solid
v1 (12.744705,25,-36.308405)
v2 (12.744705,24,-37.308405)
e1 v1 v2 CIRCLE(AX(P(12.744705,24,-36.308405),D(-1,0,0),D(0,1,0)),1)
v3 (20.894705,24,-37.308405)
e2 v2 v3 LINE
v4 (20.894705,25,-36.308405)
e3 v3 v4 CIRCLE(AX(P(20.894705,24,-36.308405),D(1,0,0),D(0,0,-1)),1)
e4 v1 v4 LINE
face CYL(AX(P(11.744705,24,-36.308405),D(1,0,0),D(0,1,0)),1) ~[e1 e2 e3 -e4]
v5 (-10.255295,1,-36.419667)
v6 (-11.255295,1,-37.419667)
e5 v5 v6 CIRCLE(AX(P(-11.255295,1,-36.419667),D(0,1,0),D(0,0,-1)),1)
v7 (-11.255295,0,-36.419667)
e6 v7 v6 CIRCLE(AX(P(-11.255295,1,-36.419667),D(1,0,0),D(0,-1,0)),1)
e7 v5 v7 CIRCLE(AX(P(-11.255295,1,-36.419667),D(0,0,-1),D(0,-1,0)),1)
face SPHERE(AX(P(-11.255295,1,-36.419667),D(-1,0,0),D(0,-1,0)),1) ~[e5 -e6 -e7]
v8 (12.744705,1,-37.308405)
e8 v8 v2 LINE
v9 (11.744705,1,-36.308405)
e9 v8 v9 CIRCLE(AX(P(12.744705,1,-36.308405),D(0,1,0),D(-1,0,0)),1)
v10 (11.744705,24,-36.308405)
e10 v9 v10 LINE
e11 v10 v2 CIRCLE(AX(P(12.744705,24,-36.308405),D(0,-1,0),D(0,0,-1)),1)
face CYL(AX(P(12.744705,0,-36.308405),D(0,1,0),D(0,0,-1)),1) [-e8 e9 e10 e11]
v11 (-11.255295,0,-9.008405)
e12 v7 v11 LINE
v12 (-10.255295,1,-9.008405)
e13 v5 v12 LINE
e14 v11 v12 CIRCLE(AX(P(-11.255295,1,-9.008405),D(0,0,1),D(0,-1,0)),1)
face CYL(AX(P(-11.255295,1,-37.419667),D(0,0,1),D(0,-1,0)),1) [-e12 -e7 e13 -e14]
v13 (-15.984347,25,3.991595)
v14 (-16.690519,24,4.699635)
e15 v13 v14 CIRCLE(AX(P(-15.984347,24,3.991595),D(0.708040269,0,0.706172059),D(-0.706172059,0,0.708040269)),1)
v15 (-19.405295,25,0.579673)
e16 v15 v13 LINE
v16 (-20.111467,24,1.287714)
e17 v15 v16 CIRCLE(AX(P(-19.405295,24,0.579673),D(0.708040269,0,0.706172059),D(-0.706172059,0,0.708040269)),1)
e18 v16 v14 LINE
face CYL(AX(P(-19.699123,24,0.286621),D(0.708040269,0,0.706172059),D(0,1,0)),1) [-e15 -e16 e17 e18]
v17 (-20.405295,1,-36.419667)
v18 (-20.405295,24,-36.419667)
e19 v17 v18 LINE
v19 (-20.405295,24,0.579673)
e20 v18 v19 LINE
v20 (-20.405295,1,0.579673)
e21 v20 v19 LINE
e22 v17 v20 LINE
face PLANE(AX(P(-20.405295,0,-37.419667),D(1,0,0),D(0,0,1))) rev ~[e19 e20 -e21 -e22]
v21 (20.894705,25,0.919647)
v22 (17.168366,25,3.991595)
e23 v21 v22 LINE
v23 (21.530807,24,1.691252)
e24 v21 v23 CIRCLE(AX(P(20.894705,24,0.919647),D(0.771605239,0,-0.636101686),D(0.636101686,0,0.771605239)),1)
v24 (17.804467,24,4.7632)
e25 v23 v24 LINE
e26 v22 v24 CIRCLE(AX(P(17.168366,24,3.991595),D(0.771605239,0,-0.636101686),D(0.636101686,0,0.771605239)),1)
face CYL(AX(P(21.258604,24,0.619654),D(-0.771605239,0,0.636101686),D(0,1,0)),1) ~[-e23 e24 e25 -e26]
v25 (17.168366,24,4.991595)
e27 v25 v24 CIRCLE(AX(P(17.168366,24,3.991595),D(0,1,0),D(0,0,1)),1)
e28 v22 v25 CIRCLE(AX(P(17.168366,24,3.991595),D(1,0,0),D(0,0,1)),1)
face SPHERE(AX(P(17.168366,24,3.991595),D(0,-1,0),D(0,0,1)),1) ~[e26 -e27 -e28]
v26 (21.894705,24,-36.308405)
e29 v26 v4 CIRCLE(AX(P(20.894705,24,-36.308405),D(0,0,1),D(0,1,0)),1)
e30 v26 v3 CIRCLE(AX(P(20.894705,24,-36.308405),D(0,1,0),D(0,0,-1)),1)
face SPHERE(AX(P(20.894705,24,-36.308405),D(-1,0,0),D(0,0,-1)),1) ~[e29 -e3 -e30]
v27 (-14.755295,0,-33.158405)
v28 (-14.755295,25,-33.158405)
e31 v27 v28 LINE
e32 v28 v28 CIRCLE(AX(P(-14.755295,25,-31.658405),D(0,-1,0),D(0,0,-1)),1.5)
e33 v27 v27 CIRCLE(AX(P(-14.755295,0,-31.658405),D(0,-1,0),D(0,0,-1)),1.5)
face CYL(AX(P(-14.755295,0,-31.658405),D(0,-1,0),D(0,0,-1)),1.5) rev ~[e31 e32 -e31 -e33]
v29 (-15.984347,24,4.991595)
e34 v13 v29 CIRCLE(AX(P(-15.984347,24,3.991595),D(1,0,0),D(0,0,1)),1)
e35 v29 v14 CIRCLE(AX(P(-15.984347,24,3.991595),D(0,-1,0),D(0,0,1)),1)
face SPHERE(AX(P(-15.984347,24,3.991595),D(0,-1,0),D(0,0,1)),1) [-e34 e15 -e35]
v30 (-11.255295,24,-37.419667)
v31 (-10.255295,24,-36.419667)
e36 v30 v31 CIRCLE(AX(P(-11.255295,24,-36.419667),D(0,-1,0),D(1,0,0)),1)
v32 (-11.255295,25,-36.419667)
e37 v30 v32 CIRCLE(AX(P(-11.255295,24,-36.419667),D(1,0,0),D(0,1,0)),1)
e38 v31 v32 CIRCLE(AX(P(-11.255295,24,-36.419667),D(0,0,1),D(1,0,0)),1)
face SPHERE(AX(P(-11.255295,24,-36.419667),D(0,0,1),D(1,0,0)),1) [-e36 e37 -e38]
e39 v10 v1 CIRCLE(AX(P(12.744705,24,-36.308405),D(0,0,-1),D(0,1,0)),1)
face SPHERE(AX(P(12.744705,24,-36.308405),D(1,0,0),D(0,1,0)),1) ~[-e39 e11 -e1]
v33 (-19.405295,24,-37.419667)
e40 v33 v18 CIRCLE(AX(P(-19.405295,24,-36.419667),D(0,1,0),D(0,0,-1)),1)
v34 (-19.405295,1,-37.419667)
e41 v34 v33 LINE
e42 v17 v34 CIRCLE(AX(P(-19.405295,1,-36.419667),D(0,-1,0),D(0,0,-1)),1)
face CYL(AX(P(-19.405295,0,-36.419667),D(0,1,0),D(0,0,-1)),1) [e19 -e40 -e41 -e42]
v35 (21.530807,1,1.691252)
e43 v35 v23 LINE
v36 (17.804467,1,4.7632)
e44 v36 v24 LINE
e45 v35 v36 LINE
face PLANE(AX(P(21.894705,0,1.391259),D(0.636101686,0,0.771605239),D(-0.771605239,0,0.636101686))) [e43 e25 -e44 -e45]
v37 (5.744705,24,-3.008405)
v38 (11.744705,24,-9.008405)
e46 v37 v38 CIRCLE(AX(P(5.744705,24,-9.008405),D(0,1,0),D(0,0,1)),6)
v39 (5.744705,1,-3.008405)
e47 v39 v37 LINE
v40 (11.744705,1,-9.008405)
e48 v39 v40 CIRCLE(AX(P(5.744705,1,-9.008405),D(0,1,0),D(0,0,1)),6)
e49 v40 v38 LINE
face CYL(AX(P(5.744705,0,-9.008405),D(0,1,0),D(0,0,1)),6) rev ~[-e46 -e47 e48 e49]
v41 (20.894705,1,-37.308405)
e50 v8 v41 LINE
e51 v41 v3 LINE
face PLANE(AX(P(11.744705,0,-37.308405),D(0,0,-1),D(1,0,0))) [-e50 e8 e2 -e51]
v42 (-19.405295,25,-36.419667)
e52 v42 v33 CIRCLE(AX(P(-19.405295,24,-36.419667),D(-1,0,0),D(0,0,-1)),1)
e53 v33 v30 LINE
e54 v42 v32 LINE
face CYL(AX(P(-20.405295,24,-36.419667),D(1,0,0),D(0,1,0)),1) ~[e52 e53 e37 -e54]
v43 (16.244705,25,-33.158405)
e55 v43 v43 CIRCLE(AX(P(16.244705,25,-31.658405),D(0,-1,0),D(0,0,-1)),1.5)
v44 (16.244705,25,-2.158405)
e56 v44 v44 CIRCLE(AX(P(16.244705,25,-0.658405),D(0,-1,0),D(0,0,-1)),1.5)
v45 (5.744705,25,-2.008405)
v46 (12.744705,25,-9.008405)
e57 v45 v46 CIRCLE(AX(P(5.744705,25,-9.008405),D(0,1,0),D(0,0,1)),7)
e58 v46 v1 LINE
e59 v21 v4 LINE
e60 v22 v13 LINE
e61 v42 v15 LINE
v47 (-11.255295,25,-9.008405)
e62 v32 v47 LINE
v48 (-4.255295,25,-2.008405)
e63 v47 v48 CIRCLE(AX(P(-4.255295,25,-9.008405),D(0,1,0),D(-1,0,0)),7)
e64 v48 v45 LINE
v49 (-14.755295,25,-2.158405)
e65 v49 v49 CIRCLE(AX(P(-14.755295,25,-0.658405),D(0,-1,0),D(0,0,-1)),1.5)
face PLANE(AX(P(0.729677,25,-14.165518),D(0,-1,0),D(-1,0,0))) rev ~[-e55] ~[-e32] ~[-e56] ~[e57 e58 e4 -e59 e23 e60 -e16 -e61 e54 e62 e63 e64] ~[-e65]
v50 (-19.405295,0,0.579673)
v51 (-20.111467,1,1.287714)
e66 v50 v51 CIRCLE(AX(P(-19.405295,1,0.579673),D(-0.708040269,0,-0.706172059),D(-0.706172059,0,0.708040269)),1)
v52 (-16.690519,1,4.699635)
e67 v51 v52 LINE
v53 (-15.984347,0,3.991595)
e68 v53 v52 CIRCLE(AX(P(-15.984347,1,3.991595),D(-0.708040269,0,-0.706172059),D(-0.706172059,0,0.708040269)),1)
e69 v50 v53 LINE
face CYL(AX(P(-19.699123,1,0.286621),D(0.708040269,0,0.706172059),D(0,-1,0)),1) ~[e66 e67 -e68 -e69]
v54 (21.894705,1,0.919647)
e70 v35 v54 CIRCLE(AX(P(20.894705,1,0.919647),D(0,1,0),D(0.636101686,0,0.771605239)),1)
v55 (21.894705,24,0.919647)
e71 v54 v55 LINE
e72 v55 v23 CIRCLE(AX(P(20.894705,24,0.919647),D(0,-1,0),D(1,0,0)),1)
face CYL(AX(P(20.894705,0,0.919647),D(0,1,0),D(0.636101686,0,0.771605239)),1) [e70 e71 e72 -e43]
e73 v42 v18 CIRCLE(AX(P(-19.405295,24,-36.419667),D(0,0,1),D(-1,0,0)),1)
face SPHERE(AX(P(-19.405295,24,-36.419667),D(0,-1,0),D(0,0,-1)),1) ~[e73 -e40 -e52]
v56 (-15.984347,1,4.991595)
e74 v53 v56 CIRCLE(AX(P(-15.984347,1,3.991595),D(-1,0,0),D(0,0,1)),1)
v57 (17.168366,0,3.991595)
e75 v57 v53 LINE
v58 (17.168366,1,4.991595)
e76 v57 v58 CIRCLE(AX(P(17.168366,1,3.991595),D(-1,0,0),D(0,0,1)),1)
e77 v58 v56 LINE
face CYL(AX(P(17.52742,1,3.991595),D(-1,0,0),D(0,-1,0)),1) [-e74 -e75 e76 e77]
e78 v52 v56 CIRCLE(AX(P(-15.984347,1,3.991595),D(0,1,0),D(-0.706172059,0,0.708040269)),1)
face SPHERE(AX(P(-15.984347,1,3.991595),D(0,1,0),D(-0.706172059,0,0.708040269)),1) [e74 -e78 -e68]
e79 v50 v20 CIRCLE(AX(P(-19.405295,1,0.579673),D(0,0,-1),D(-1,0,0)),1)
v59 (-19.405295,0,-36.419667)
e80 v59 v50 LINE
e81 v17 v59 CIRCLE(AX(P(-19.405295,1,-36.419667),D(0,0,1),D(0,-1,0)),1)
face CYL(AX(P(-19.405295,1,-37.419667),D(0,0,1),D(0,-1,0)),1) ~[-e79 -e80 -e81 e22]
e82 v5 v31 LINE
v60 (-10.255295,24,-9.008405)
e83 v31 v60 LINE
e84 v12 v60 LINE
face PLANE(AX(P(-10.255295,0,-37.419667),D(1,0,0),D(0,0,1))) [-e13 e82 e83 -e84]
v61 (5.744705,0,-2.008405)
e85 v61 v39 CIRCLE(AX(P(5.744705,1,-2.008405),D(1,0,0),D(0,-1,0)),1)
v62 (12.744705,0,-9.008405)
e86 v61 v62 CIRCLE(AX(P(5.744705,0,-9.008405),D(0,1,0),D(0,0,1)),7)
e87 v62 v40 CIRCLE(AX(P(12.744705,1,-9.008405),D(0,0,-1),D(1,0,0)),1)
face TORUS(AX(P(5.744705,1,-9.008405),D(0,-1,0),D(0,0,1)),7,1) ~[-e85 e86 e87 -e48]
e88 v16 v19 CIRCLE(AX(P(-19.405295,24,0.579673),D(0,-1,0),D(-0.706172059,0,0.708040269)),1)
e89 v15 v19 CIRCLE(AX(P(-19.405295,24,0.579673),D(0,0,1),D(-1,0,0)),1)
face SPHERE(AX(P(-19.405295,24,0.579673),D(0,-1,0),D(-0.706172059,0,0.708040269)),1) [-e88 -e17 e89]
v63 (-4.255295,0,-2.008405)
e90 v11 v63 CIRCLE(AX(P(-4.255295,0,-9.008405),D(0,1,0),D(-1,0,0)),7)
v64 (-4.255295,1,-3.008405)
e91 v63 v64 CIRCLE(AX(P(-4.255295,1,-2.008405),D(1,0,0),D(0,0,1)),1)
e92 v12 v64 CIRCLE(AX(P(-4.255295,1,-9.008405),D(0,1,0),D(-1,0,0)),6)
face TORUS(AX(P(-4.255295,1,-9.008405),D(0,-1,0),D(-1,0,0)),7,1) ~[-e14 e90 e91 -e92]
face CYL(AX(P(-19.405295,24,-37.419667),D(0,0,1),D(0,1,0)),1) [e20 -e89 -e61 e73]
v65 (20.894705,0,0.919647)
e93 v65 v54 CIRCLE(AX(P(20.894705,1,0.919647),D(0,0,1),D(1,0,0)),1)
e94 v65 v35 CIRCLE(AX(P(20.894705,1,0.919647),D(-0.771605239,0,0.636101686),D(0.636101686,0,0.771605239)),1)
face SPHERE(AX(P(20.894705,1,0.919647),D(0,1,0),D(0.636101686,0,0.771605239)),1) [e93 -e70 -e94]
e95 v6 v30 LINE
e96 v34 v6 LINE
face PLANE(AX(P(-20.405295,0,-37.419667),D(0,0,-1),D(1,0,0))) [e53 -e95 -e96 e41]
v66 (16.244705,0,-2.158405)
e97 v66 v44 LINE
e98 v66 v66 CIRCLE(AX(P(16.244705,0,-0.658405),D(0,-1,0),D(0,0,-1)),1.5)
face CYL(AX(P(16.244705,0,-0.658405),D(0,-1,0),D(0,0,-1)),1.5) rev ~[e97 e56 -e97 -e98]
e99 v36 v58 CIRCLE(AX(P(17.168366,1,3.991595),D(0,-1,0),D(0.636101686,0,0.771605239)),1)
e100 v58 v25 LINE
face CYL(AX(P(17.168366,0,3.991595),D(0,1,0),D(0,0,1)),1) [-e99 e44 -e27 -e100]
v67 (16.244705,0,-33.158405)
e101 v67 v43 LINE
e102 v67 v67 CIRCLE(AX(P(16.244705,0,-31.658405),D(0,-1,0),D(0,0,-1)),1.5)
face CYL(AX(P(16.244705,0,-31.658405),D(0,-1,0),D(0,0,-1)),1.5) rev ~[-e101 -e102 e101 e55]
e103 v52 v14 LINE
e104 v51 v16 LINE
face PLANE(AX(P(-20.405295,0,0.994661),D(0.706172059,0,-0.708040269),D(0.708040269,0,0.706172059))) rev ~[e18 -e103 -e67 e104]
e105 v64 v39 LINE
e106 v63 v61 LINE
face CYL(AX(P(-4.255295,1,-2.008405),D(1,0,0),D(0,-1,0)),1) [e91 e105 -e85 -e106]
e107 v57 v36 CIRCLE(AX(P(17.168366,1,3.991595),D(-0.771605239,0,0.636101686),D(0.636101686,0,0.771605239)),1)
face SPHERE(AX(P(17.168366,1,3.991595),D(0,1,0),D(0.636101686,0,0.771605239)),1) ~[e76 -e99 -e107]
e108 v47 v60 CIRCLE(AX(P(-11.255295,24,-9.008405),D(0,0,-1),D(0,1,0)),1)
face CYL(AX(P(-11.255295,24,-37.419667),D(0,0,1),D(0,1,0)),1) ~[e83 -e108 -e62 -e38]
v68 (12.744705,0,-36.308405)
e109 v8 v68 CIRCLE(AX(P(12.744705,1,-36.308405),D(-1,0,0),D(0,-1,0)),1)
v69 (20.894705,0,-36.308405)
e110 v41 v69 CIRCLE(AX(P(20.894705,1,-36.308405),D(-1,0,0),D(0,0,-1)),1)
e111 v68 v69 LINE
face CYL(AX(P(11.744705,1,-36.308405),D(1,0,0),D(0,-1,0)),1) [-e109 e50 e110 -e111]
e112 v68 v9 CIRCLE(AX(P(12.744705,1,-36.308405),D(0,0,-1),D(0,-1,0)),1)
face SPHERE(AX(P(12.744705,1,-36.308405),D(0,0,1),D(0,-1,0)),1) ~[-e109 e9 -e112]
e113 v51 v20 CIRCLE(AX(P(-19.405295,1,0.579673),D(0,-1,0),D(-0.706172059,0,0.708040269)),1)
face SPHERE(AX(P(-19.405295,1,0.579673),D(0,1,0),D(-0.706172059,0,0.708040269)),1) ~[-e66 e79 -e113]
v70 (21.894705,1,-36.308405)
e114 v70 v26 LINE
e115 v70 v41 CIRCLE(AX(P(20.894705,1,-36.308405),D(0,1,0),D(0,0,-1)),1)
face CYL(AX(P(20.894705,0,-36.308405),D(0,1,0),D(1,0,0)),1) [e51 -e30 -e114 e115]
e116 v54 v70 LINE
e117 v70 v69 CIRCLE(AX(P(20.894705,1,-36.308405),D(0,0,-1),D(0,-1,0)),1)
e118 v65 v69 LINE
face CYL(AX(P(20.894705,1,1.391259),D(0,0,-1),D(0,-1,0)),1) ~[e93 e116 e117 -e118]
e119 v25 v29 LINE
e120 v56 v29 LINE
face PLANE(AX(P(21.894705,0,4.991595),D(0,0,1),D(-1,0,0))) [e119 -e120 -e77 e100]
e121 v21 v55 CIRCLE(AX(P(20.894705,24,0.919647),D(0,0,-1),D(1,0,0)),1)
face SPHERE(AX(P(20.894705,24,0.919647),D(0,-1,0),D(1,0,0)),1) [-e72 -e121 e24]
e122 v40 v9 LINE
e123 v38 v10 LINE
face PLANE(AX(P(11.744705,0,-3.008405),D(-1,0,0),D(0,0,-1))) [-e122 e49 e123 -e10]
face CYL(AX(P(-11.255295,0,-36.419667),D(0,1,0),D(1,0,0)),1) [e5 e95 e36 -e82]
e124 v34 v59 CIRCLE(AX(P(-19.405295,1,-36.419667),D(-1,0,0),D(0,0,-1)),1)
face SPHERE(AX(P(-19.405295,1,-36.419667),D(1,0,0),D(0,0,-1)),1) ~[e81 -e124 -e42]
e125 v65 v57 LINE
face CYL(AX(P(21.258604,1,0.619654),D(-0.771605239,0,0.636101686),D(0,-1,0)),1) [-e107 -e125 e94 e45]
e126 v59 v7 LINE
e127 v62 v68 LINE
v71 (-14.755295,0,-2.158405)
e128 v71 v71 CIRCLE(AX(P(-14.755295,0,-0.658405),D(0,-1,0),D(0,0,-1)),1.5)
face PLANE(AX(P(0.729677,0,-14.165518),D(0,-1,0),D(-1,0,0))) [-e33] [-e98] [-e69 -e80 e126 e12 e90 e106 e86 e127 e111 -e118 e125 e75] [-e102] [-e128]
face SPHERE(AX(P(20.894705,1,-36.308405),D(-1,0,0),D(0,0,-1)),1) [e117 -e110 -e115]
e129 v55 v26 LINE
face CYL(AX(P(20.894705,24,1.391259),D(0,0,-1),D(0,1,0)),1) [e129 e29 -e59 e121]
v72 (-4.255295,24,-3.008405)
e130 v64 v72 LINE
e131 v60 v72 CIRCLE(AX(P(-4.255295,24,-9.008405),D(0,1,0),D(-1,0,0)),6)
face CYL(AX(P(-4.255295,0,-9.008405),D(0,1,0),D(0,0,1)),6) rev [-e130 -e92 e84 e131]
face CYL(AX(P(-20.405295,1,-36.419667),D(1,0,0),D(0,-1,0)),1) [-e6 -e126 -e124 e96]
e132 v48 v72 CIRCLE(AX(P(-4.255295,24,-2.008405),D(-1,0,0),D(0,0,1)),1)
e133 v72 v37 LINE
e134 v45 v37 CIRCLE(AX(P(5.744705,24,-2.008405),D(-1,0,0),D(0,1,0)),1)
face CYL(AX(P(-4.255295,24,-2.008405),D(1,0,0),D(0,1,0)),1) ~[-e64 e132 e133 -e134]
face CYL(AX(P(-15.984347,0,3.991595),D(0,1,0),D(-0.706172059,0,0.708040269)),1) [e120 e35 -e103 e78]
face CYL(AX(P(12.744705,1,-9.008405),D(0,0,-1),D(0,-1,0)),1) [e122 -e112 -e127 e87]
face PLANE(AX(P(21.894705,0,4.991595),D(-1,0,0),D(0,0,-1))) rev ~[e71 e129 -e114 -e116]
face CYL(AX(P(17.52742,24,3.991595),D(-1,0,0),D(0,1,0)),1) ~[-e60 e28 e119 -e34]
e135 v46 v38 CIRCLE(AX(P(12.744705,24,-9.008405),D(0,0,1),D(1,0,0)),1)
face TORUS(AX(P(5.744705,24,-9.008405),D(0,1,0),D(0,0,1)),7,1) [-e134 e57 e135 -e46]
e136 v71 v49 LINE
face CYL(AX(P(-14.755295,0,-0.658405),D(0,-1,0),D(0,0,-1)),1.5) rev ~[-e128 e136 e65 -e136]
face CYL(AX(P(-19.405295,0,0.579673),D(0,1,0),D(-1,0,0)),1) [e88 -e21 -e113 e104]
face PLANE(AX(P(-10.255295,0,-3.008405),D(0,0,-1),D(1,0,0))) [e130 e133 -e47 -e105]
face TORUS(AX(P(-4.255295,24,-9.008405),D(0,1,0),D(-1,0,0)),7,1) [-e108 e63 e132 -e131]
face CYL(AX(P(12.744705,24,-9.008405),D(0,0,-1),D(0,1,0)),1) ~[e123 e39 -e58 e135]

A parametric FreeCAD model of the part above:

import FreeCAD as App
import Part
import Sketcher
from FreeCAD import Vector


def edges_at(feature, points):
    """Names of the edges that pass closest to the given points."""
    edges = feature.Shape.Edges
    near = lambda p: min(range(len(edges)), key=lambda i: edges[i].distToShape(Part.Vertex(*p))[0])
    return sorted({f"Edge{near(p) + 1}" for p in points})


def add_polygon(sketch, points):
    """Adds a closed chain of lines whose ends are joined by coincident constraints."""
    first, n = sketch.GeometryCount, len(points)
    for a, b in zip(points, points[1:] + points[:1]):
        sketch.addGeometry(Part.LineSegment(App.Vector(*a, 0), App.Vector(*b, 0)), False)
    for i in range(n):
        sketch.addConstraint(Sketcher.Constraint("Coincident", first + i, 2, first + (i + 1) % n, 1))

doc = App.newDocument("Part")
params = doc.addObject("Spreadsheet::Sheet", "Params")
for row, (alias, value) in enumerate([
    ("sketch1_width", "22 mm"),
    ("sketch1_width2", "42.3 mm"),
    ("sketch1_height", "34.3 mm"),
    ("pad1_length", "25 mm"),
    ("sketch2_diameter", "3 mm"),
    ("fillet_radius", "6 mm"),
    ("sketch3_length", "5.66 mm"),
    ("fillet2_radius", "1 mm"),
], start=1):
    params.set(f"A{row}", alias)
    params.set(f"B{row}", "=" + value)
    params.setAlias(f"B{row}", alias)

body = doc.addObject("PartDesign::Body", "Body")

sketch1 = body.newObject("Sketcher::SketchObject", "Sketch")
sketch1.AttachmentSupport = (doc.getObject("XZ_Plane"), [""])
sketch1.MapMode = "FlatFace"
add_polygon(sketch1, [(11.744705, -3.008405), (-10.255295, -3.008405), (-10.255295, -37.419667), (-20.405295, -37.419667), (-20.405295, 4.991595), (21.894705, 4.991595), (21.894705, -37.308405), (11.744705, -37.308405)])
sketch1.addConstraint(Sketcher.Constraint("Horizontal", 0))
sketch1.addConstraint(Sketcher.Constraint("Vertical", 1))
sketch1.addConstraint(Sketcher.Constraint("Horizontal", 2))
sketch1.addConstraint(Sketcher.Constraint("Vertical", 3))
sketch1.addConstraint(Sketcher.Constraint("Horizontal", 4))
sketch1.addConstraint(Sketcher.Constraint("Vertical", 5))
sketch1.addConstraint(Sketcher.Constraint("Horizontal", 6))
sketch1.addConstraint(Sketcher.Constraint("Vertical", 7))
sketch1.addConstraint(Sketcher.Constraint("Equal", 2, 6))
sketch1.addConstraint(Sketcher.Constraint("Equal", 4, 5))
sketch1.addConstraint(Sketcher.Constraint("DistanceX", 0, 2, 0, 1, 22.0))
sketch1.addConstraint(Sketcher.Constraint("DistanceX", 4, 1, 4, 2, 42.3))
sketch1.addConstraint(Sketcher.Constraint("DistanceY", 7, 1, 7, 2, 34.3))
sketch1.addConstraint(Sketcher.Constraint("DistanceY", 1, 2, 1, 1, 34.411261))
sketch1.addConstraint(Sketcher.Constraint("DistanceX", 0, 2, -1, 1, 10.255295))
sketch1.addConstraint(Sketcher.Constraint("DistanceY", 0, 2, -1, 1, 3.008405))
sketch1.setExpression("Constraints[18]", "Params.sketch1_width")
sketch1.setExpression("Constraints[19]", "Params.sketch1_width2")
sketch1.setExpression("Constraints[20]", "Params.sketch1_height")
pad1 = body.newObject("PartDesign::Pad", "Pad")
pad1.Profile = sketch1
pad1.setExpression("Length", "Params.pad1_length")
pad1.Reversed = True

sketch2 = body.newObject("Sketcher::SketchObject", "Sketch001")
sketch2.AttachmentSupport = (doc.getObject("XZ_Plane"), [""])
sketch2.MapMode = "FlatFace"
sketch2.addGeometry(Part.Circle(Vector(-14.755295, -31.658405, 0), Vector(0, 0, 1), 1.5), False)
sketch2.addGeometry(Part.Circle(Vector(-14.755295, -0.658405, 0), Vector(0, 0, 1), 1.5), False)
sketch2.addGeometry(Part.Circle(Vector(16.244705, -0.658405, 0), Vector(0, 0, 1), 1.5), False)
sketch2.addGeometry(Part.Circle(Vector(16.244705, -31.658405, 0), Vector(0, 0, 1), 1.5), False)
sketch2.addConstraint(Sketcher.Constraint("Equal", 0, 1))
sketch2.addConstraint(Sketcher.Constraint("Equal", 1, 2))
sketch2.addConstraint(Sketcher.Constraint("Equal", 2, 3))
sketch2.addConstraint(Sketcher.Constraint("Horizontal", 1, 3, 2, 3))
sketch2.addConstraint(Sketcher.Constraint("Horizontal", 0, 3, 3, 3))
sketch2.addConstraint(Sketcher.Constraint("Vertical", 0, 3, 1, 3))
sketch2.addConstraint(Sketcher.Constraint("Vertical", 2, 3, 3, 3))
sketch2.addConstraint(Sketcher.Constraint("Diameter", 0, 3.0))
sketch2.addConstraint(Sketcher.Constraint("DistanceY", 0, 3, 1, 3, 31.0))
sketch2.addConstraint(Sketcher.Constraint("DistanceX", 1, 3, 2, 3, 31.0))
sketch2.addConstraint(Sketcher.Constraint("DistanceX", 0, 3, -1, 1, 14.755295))
sketch2.addConstraint(Sketcher.Constraint("DistanceY", 0, 3, -1, 1, 31.658405))
sketch2.setExpression("Constraints[7]", "Params.sketch2_diameter")
pocket1 = body.newObject("PartDesign::Pocket", "Pocket")
pocket1.Profile = sketch2
pocket1.Type = "ThroughAll"
doc.recompute()

fillet = body.newObject("PartDesign::Fillet", "Fillet")
fillet.Base = (pocket1, edges_at(pocket1, [(-10.255, 12.5, -3.008), (11.745, 12.5, -3.008)]))
fillet.setExpression("Radius", "Params.fillet_radius")

sketch3 = body.newObject("Sketcher::SketchObject", "Sketch002")
sketch3.AttachmentSupport = (doc.getObject("XZ_Plane"), [""])
sketch3.MapMode = "FlatFace"
add_polygon(sketch3, [(17.52742, 4.991595), (21.894705, 1.391259), (21.894705, 4.991595)])
add_polygon(sketch3, [(-20.405295, 0.994661), (-16.397787, 4.991595), (-20.405295, 4.991595)])
sketch3.addConstraint(Sketcher.Constraint("Vertical", 1))
sketch3.addConstraint(Sketcher.Constraint("Horizontal", 2))
sketch3.addConstraint(Sketcher.Constraint("Horizontal", 4))
sketch3.addConstraint(Sketcher.Constraint("Vertical", 5))
sketch3.addConstraint(Sketcher.Constraint("Horizontal", 2, 2, 3, 2))
sketch3.addConstraint(Sketcher.Constraint("Equal", 0, 3))
sketch3.addConstraint(Sketcher.Constraint("DistanceX", 4, 2, 1, 2, 42.3))
sketch3.addConstraint(Sketcher.Constraint("Distance", 0, 5.66))
sketch3.addConstraint(Sketcher.Constraint("DistanceY", 5, 2, 0, 2, 0.396598))
sketch3.addConstraint(Sketcher.Constraint("DistanceX", 2, 2, 2, 1, 4.367286))
sketch3.addConstraint(Sketcher.Constraint("DistanceY", -1, 1, 0, 2, 1.391259))
sketch3.addConstraint(Sketcher.Constraint("DistanceX", -1, 1, 2, 2, 17.52742))
sketch3.setExpression("Constraints[13]", "Params.sketch3_length")
pocket2 = body.newObject("PartDesign::Pocket", "Pocket001")
pocket2.Profile = sketch3
pocket2.Type = "ThroughAll"
doc.recompute()

fillet2 = body.newObject("PartDesign::Fillet", "Fillet001")
fillet2.Base = (pocket2, edges_at(pocket2, [
    (16.82, 25, -37.308),
    (-15.33, 0, -37.42),
    (11.745, 0, -23.158),
    (16.82, 0, -37.308),
    (11.745, 25, -23.158),
    (-20.405, 12.5, -37.42),
    (-10.255, 12.5, -37.42),
    (11.745, 12.5, -37.308),
    (21.895, 12.5, -37.308),
    (-15.33, 25, -37.42),
    (-20.405, 25, -18.213),
    (-10.255, 0, -23.214),
    (-10.255, 25, -23.214),
    (0.745, 0, -3.008),
    (0.745, 25, -3.008),
    (-8.498, 0, -4.766),
    (-8.498, 25, -4.766),
    (9.987, 0, -4.766),
    (9.987, 25, -4.766),
    (21.895, 0, -17.959),
    (21.895, 25, -17.959),
    (19.711, 25, 3.191),
    (21.895, 12.5, 1.391),
    (17.527, 12.5, 4.992),
    (19.711, 0, 3.191),
    (0.565, 0, 4.992),
    (0.565, 25, 4.992),
    (-20.405, 12.5, 0.995),
    (-18.402, 25, 2.993),
    (-16.398, 12.5, 4.992),
    (-18.402, 0, 2.993),
    (-20.405, 0, -18.213),
]))
fillet2.setExpression("Radius", "Params.fillet2_radius")

doc.recompute()
